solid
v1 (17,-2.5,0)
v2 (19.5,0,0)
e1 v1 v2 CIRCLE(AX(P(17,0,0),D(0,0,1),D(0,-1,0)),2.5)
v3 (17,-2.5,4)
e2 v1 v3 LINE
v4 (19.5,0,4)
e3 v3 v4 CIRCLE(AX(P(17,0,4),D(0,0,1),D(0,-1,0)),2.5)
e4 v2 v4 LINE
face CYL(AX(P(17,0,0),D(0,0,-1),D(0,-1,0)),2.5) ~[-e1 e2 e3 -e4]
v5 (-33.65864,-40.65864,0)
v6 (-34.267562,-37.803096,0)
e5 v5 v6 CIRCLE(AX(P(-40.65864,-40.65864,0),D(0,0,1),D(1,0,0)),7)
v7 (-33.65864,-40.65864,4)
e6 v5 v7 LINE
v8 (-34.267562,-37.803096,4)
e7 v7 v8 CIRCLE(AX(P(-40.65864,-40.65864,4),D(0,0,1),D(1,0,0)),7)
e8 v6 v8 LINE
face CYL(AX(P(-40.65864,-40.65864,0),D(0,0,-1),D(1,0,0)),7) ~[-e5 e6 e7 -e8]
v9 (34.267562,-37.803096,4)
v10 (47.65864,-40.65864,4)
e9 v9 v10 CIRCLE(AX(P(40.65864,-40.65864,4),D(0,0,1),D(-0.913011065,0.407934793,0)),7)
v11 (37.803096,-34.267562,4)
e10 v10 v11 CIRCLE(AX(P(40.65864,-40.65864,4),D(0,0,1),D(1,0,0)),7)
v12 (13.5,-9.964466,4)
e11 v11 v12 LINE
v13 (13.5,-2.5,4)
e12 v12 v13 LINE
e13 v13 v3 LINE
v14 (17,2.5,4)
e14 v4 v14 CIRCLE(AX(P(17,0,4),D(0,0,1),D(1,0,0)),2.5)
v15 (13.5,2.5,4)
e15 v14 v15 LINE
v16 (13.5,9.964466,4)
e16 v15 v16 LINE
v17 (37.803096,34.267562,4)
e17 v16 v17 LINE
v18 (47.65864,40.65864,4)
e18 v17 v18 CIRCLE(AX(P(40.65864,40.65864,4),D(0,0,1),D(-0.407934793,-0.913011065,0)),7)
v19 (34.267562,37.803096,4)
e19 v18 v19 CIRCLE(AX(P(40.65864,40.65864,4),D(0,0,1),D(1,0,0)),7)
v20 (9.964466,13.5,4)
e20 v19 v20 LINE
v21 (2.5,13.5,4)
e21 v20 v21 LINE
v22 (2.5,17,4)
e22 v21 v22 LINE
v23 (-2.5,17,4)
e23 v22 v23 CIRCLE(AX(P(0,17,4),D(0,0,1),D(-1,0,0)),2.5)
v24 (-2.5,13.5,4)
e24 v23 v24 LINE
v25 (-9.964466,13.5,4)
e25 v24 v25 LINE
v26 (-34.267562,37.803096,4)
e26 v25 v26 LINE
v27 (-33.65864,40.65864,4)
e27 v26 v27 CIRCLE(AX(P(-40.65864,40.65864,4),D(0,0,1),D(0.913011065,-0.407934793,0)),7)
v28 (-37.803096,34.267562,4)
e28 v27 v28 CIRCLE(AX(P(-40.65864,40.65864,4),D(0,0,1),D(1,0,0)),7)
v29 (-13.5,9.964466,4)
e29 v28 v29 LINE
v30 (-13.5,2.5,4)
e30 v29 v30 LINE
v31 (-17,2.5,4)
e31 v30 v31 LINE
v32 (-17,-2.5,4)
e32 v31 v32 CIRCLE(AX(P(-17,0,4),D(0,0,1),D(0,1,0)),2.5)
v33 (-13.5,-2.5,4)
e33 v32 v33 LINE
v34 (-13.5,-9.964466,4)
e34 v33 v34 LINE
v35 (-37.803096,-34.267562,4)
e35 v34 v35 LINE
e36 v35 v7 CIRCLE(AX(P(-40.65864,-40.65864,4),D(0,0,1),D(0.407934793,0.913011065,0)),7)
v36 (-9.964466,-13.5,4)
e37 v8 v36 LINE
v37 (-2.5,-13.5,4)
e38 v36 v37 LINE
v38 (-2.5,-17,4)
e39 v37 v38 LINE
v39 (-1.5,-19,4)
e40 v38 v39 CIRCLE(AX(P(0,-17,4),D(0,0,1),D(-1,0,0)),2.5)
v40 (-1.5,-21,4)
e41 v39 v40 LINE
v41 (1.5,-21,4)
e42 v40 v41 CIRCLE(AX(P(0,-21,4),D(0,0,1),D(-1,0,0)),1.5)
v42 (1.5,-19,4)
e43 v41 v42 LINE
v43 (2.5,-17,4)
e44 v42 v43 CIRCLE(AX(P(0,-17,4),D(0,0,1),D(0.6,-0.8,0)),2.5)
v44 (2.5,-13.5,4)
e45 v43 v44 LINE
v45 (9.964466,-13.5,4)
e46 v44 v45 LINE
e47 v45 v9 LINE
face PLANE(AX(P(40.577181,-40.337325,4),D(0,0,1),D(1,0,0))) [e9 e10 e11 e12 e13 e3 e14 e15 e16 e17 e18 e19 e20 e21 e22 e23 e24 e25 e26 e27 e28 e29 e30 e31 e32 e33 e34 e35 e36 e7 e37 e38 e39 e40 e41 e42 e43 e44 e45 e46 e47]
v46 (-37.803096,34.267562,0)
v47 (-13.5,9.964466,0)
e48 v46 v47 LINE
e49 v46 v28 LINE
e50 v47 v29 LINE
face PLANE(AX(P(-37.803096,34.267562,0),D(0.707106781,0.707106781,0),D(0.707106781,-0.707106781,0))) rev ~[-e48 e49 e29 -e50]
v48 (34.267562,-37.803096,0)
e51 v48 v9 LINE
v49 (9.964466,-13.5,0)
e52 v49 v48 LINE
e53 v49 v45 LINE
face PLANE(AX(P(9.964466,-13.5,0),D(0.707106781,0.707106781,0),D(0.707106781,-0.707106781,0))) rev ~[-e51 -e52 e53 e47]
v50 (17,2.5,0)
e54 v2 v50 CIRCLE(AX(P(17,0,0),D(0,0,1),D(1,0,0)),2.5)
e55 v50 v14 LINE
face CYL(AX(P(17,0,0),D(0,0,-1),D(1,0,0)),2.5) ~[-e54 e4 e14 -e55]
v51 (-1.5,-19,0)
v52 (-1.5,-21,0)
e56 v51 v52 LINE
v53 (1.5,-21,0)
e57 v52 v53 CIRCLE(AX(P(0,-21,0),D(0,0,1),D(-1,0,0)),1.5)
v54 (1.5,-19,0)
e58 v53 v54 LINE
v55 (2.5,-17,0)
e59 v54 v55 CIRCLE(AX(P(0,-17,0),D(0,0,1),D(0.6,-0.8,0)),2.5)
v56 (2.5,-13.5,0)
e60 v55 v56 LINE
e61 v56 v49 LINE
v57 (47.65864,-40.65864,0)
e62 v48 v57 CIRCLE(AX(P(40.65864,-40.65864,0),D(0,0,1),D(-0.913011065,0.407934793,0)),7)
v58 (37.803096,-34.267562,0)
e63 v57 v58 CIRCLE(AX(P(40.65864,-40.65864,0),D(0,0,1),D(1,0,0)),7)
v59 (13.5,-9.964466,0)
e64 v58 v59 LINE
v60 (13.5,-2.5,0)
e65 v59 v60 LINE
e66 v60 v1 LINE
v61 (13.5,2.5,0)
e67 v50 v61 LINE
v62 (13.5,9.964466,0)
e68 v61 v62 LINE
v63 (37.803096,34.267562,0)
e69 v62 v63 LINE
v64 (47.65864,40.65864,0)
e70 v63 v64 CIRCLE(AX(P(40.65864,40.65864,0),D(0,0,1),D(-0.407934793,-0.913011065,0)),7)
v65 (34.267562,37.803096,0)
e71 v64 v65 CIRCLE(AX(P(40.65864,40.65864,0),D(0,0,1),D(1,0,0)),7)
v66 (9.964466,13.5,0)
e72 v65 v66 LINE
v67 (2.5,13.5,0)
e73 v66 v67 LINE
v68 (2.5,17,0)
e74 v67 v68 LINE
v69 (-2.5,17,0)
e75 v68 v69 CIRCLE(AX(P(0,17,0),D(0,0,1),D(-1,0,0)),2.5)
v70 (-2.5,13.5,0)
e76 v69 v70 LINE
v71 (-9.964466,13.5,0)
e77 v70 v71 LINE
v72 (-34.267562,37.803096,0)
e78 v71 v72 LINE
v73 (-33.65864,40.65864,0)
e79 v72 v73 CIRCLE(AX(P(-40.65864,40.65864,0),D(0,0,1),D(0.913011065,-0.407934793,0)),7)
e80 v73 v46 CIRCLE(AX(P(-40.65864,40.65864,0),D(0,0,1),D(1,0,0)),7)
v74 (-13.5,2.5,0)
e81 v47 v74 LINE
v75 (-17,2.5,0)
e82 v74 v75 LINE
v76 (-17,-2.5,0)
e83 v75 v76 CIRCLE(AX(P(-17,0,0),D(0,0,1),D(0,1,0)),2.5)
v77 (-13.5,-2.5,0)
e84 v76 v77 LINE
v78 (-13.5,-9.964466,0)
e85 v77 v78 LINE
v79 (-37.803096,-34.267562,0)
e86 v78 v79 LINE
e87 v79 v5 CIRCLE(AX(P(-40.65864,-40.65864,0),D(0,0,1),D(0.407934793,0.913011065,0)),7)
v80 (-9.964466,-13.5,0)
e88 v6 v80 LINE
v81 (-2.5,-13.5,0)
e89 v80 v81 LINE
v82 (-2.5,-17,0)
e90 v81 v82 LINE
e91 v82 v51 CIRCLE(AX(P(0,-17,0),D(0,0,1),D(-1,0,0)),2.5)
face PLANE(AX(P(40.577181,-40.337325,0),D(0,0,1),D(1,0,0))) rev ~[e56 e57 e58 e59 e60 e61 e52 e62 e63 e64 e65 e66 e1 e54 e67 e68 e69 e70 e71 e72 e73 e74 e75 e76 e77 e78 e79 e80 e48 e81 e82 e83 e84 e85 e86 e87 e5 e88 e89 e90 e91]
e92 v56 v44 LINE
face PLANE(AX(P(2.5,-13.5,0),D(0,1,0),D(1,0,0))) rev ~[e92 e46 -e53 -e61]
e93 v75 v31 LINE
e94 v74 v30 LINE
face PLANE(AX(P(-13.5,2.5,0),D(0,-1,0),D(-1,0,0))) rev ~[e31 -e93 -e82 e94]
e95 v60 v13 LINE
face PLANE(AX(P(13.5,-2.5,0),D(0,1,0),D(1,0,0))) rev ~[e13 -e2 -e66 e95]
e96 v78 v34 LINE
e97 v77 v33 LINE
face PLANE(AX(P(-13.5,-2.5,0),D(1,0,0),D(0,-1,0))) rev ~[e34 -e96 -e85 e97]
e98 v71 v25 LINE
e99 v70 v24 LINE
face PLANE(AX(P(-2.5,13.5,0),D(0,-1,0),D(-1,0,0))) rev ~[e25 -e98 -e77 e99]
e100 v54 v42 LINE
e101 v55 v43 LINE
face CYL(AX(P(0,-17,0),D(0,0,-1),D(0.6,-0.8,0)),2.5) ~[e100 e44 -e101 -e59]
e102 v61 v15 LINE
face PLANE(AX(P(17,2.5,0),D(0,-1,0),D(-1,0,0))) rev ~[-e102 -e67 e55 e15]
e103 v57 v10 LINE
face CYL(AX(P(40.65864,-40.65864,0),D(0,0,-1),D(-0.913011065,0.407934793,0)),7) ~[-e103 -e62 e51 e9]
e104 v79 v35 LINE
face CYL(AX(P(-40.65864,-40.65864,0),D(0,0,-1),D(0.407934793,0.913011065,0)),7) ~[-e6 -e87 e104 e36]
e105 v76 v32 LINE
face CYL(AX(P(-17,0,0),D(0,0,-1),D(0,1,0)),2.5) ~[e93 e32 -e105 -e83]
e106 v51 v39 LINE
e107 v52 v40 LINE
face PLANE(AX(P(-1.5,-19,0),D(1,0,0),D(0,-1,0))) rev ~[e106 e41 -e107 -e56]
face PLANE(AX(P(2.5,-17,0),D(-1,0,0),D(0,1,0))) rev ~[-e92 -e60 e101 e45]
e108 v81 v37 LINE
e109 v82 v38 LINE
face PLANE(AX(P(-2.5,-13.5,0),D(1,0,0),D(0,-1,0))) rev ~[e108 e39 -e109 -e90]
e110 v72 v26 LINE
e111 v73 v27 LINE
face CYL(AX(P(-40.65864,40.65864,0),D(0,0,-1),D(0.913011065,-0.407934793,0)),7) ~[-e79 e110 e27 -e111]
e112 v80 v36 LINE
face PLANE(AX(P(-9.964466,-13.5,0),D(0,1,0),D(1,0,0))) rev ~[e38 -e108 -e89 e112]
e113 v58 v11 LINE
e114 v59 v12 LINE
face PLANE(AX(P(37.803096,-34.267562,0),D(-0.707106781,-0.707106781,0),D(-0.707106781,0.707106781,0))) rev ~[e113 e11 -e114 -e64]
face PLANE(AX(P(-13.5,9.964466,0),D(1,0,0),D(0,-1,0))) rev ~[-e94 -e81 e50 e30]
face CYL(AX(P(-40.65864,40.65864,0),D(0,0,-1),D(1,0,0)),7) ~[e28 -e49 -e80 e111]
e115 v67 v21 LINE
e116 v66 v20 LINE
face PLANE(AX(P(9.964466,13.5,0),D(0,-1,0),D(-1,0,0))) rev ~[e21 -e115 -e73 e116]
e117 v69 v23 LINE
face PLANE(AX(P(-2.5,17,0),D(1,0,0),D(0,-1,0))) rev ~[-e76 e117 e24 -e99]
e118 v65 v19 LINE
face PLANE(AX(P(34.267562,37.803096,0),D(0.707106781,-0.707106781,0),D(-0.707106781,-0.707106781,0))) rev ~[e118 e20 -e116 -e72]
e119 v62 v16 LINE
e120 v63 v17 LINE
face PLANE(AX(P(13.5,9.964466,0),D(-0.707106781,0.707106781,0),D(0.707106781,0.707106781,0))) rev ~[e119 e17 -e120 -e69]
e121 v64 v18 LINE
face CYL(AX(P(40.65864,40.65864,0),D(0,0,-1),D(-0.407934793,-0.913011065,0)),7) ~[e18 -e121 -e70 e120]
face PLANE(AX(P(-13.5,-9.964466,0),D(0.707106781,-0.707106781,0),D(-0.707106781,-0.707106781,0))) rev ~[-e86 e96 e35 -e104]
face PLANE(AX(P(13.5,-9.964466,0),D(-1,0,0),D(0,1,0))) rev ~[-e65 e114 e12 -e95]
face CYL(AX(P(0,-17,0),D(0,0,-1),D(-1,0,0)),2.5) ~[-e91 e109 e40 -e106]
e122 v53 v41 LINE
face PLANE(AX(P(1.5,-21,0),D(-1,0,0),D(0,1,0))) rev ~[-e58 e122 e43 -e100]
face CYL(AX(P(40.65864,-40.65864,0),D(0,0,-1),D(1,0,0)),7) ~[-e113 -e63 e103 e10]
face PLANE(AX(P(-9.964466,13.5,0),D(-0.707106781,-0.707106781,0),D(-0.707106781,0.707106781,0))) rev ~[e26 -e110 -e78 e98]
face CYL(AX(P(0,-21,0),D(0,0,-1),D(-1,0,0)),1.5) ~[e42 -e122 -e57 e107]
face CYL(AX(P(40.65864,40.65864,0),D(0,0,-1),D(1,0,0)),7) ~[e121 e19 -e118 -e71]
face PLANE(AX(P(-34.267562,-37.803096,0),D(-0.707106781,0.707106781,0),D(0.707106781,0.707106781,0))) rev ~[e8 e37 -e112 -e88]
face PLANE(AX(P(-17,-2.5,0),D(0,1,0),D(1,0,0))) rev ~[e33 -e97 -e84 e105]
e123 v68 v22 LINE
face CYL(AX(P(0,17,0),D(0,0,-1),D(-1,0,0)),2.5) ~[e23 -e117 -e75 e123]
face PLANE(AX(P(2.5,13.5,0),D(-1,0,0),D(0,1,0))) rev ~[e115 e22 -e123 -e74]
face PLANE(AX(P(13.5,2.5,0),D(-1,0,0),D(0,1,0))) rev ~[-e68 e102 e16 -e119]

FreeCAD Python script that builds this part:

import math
import FreeCAD as App
import Part
import Sketcher

doc = App.newDocument("Part")
body = doc.addObject("PartDesign::Body", "Body")

# Sketch on XY plane
sketch1 = body.newObject("Sketcher::SketchObject", "Sketch")
sketch1.AttachmentSupport = (doc.getObject("XY_Plane"), [""])
sketch1.MapMode = "FlatFace"
sketch1.addGeometry([
    Part.LineSegment(App.Vector(-13.5, 10, 0), App.Vector(-13.5, 2.5, 0)),  # 0
    Part.LineSegment(App.Vector(-13.5, 2.5, 0), App.Vector(-17, 2.5, 0)),  # 1
    Part.ArcOfCircle(Part.Circle(App.Vector(-17, 0, 0), App.Vector(0, 0, 1), 2.5), math.radians(90), math.radians(270)),  # 2
    Part.LineSegment(App.Vector(-17, -2.5, 0), App.Vector(-13.5, -2.5, 0)),  # 3
    Part.LineSegment(App.Vector(-13.5, -2.5, 0), App.Vector(-13.5, -10, 0)),  # 4
    Part.LineSegment(App.Vector(-13.5, -10, 0), App.Vector(-37.8, -34.3, 0)),  # 5
    Part.ArcOfCircle(Part.Circle(App.Vector(-40.7, -40.7, 0), App.Vector(0, 0, 1), 7), math.radians(66), math.radians(360)),  # 6
    Part.ArcOfCircle(Part.Circle(App.Vector(-40.7, -40.7, 0), App.Vector(0, 0, 1), 7), math.radians(0), math.radians(24)),  # 7
    Part.LineSegment(App.Vector(-34.3, -37.8, 0), App.Vector(-10, -13.5, 0)),  # 8
    Part.LineSegment(App.Vector(-10, -13.5, 0), App.Vector(-2.5, -13.5, 0)),  # 9
    Part.LineSegment(App.Vector(-2.5, -13.5, 0), App.Vector(-2.5, -17, 0)),  # 10
    Part.ArcOfCircle(Part.Circle(App.Vector(0, -17, 0), App.Vector(0, 0, 1), 2.5), math.radians(180), math.radians(233)),  # 11
    Part.LineSegment(App.Vector(-1.5, -19, 0), App.Vector(-1.5, -21, 0)),  # 12
    Part.ArcOfCircle(Part.Circle(App.Vector(0, -21, 0), App.Vector(0, 0, 1), 1.5), math.radians(180), math.radians(360)),  # 13
    Part.LineSegment(App.Vector(1.5, -21, 0), App.Vector(1.5, -19, 0)),  # 14
    Part.ArcOfCircle(Part.Circle(App.Vector(0, -17, 0), App.Vector(0, 0, 1), 2.5), math.radians(-53), math.radians(0)),  # 15
    Part.LineSegment(App.Vector(2.5, -17, 0), App.Vector(2.5, -13.5, 0)),  # 16
    Part.LineSegment(App.Vector(2.5, -13.5, 0), App.Vector(10, -13.5, 0)),  # 17
    Part.LineSegment(App.Vector(10, -13.5, 0), App.Vector(34.3, -37.8, 0)),  # 18
    Part.ArcOfCircle(Part.Circle(App.Vector(40.7, -40.7, 0), App.Vector(0, 0, 1), 7), math.radians(156), math.radians(360)),  # 19
    Part.ArcOfCircle(Part.Circle(App.Vector(40.7, -40.7, 0), App.Vector(0, 0, 1), 7), math.radians(0), math.radians(114)),  # 20
    Part.LineSegment(App.Vector(37.8, -34.3, 0), App.Vector(13.5, -10, 0)),  # 21
    Part.LineSegment(App.Vector(13.5, -10, 0), App.Vector(13.5, -2.5, 0)),  # 22
    Part.LineSegment(App.Vector(13.5, -2.5, 0), App.Vector(17, -2.5, 0)),  # 23
    Part.ArcOfCircle(Part.Circle(App.Vector(17, 0, 0), App.Vector(0, 0, 1), 2.5), math.radians(-90), math.radians(0)),  # 24
    Part.ArcOfCircle(Part.Circle(App.Vector(17, 0, 0), App.Vector(0, 0, 1), 2.5), math.radians(0), math.radians(90)),  # 25
    Part.LineSegment(App.Vector(17, 2.5, 0), App.Vector(13.5, 2.5, 0)),  # 26
    Part.LineSegment(App.Vector(13.5, 2.5, 0), App.Vector(13.5, 10, 0)),  # 27
    Part.LineSegment(App.Vector(13.5, 10, 0), App.Vector(37.8, 34.3, 0)),  # 28
    Part.ArcOfCircle(Part.Circle(App.Vector(40.7, 40.7, 0), App.Vector(0, 0, 1), 7), math.radians(-114), math.radians(0)),  # 29
    Part.ArcOfCircle(Part.Circle(App.Vector(40.7, 40.7, 0), App.Vector(0, 0, 1), 7), math.radians(0), math.radians(204)),  # 30
    Part.LineSegment(App.Vector(34.3, 37.8, 0), App.Vector(10, 13.5, 0)),  # 31
    Part.LineSegment(App.Vector(10, 13.5, 0), App.Vector(2.5, 13.5, 0)),  # 32
    Part.LineSegment(App.Vector(2.5, 13.5, 0), App.Vector(2.5, 17, 0)),  # 33
    Part.ArcOfCircle(Part.Circle(App.Vector(0, 17, 0), App.Vector(0, 0, 1), 2.5), math.radians(0), math.radians(180)),  # 34
    Part.LineSegment(App.Vector(-2.5, 17, 0), App.Vector(-2.5, 13.5, 0)),  # 35
    Part.LineSegment(App.Vector(-2.5, 13.5, 0), App.Vector(-10, 13.5, 0)),  # 36
    Part.LineSegment(App.Vector(-10, 13.5, 0), App.Vector(-34.3, 37.8, 0)),  # 37
    Part.ArcOfCircle(Part.Circle(App.Vector(-40.7, 40.7, 0), App.Vector(0, 0, 1), 7), math.radians(-24), math.radians(0)),  # 38
    Part.ArcOfCircle(Part.Circle(App.Vector(-40.7, 40.7, 0), App.Vector(0, 0, 1), 7), math.radians(0), math.radians(294)),  # 39
    Part.LineSegment(App.Vector(-37.8, 34.3, 0), App.Vector(-13.5, 10, 0)),  # 40
], False)
sketch1.addConstraint([
    Sketcher.Constraint("Coincident", 0, 2, 1, 1),
    Sketcher.Constraint("Tangent", 1, 2, 2, 1),
    Sketcher.Constraint("Tangent", 2, 2, 3, 1),
    Sketcher.Constraint("Coincident", 3, 2, 4, 1),
    Sketcher.Constraint("Coincident", 4, 2, 5, 1),
    Sketcher.Constraint("Coincident", 5, 2, 6, 1),
    Sketcher.Constraint("Tangent", 6, 2, 7, 1),
    Sketcher.Constraint("Coincident", 7, 2, 8, 1),
    Sketcher.Constraint("Coincident", 8, 2, 9, 1),
    Sketcher.Constraint("Coincident", 9, 2, 10, 1),
    Sketcher.Constraint("Tangent", 10, 2, 11, 1),
    Sketcher.Constraint("Coincident", 11, 2, 12, 1),
    Sketcher.Constraint("Tangent", 12, 2, 13, 1),
    Sketcher.Constraint("Tangent", 13, 2, 14, 1),
    Sketcher.Constraint("Coincident", 14, 2, 15, 1),
    Sketcher.Constraint("Tangent", 15, 2, 16, 1),
    Sketcher.Constraint("Coincident", 16, 2, 17, 1),
    Sketcher.Constraint("Coincident", 17, 2, 18, 1),
    Sketcher.Constraint("Coincident", 18, 2, 19, 1),
    Sketcher.Constraint("Tangent", 19, 2, 20, 1),
    Sketcher.Constraint("Coincident", 20, 2, 21, 1),
    Sketcher.Constraint("Coincident", 21, 2, 22, 1),
    Sketcher.Constraint("Coincident", 22, 2, 23, 1),
    Sketcher.Constraint("Tangent", 23, 2, 24, 1),
    Sketcher.Constraint("Tangent", 24, 2, 25, 1),
    Sketcher.Constraint("Tangent", 25, 2, 26, 1),
    Sketcher.Constraint("Coincident", 26, 2, 27, 1),
    Sketcher.Constraint("Coincident", 27, 2, 28, 1),
    Sketcher.Constraint("Coincident", 28, 2, 29, 1),
    Sketcher.Constraint("Tangent", 29, 2, 30, 1),
    Sketcher.Constraint("Coincident", 30, 2, 31, 1),
    Sketcher.Constraint("Coincident", 31, 2, 32, 1),
    Sketcher.Constraint("Coincident", 32, 2, 33, 1),
    Sketcher.Constraint("Tangent", 33, 2, 34, 1),
    Sketcher.Constraint("Tangent", 34, 2, 35, 1),
    Sketcher.Constraint("Coincident", 35, 2, 36, 1),
    Sketcher.Constraint("Coincident", 36, 2, 37, 1),
    Sketcher.Constraint("Coincident", 37, 2, 38, 1),
    Sketcher.Constraint("Tangent", 38, 2, 39, 1),
    Sketcher.Constraint("Coincident", 39, 2, 40, 1),
    Sketcher.Constraint("Coincident", 40, 2, 0, 1),
    Sketcher.Constraint("Vertical", 0),
    Sketcher.Constraint("Horizontal", 1),
    Sketcher.Constraint("Horizontal", 3),
    Sketcher.Constraint("Vertical", 4),
    Sketcher.Constraint("Horizontal", 9),
    Sketcher.Constraint("Vertical", 10),
    Sketcher.Constraint("Vertical", 12),
    Sketcher.Constraint("Vertical", 14),
    Sketcher.Constraint("Vertical", 16),
    Sketcher.Constraint("Horizontal", 17),
    Sketcher.Constraint("Vertical", 22),
    Sketcher.Constraint("Horizontal", 23),
    Sketcher.Constraint("Horizontal", 26),
    Sketcher.Constraint("Vertical", 27),
    Sketcher.Constraint("Horizontal", 32),
    Sketcher.Constraint("Vertical", 33),
    Sketcher.Constraint("Vertical", 35),
    Sketcher.Constraint("Horizontal", 36),
    Sketcher.Constraint("Coincident", 15, 3, 11, 3),
    Sketcher.Constraint("Equal", 6, 7),
    Sketcher.Constraint("Equal", 2, 11),
    Sketcher.Constraint("Equal", 11, 15),
    Sketcher.Constraint("Equal", 7, 19),
    Sketcher.Constraint("Equal", 19, 20),
    Sketcher.Constraint("Equal", 15, 24),
    Sketcher.Constraint("Equal", 24, 25),
    Sketcher.Constraint("Equal", 20, 29),
    Sketcher.Constraint("Equal", 29, 30),
    Sketcher.Constraint("Equal", 25, 34),
    Sketcher.Constraint("Equal", 30, 38),
    Sketcher.Constraint("Equal", 38, 39),
    Sketcher.Constraint("Symmetric", 2, 3, 24, 3, -1, 1),
    Sketcher.Constraint("Symmetric", 6, 3, 29, 3, -1, 1),
    Sketcher.Constraint("Symmetric", 11, 3, 34, 3, -1, 1),
    Sketcher.Constraint("Symmetric", 19, 3, 38, 3, -1, 1),
    Sketcher.Constraint("Symmetric", 4, 2, 27, 2, -1, 1),
    Sketcher.Constraint("Symmetric", 8, 2, 31, 2, -1, 1),
    Sketcher.Constraint("Symmetric", 17, 2, 36, 2, -1, 1),
    Sketcher.Constraint("Symmetric", 21, 2, 40, 2, -1, 1),
    Sketcher.Constraint("Symmetric", 6, 3, 19, 3, -2),
    Sketcher.Constraint("Symmetric", 11, 2, 14, 2, -2),
    Sketcher.Constraint("Symmetric", 8, 2, 17, 2, -2),
    Sketcher.Constraint("Symmetric", 4, 2, 21, 2, -2),
    Sketcher.Constraint("PointOnObject", 2, 3, -1),
    Sketcher.Constraint("PointOnObject", 24, 2, -1),
    Sketcher.Constraint("Parallel", 5, 8),
    Sketcher.Constraint("Perpendicular", 8, 18),
    Sketcher.Constraint("Parallel", 18, 21),
    Sketcher.Constraint("Perpendicular", 21, 28),
    Sketcher.Constraint("Parallel", 28, 31),
    Sketcher.Constraint("Perpendicular", 31, 37),
    Sketcher.Constraint("Parallel", 37, 40),
    Sketcher.Constraint("Horizontal", 20, 3, 6, 2),
    Sketcher.Constraint("Horizontal", 7, 2, 18, 2),
    Sketcher.Constraint("Horizontal", 6, 2, 19, 2),
    Sketcher.Constraint("Horizontal", 39, 3, 29, 2),
    Sketcher.Constraint("Horizontal", 29, 2, 38, 2),
    Sketcher.Constraint("Equal", 36, 0),
    Sketcher.Constraint("Equal", 26, 10),
    Sketcher.Constraint("Equal", 5, 8),
    Sketcher.Constraint("Radius", 6, 7.0),
    Sketcher.Constraint("Radius", 2, 2.5),
    Sketcher.Constraint("Radius", 13, 1.5),
    Sketcher.Constraint("DistanceY", 12, 2, 12, 1, 2.0),
    Sketcher.Constraint("DistanceX", 1, 2, 1, 1, 3.5),
    Sketcher.Constraint("DistanceX", 2, 3, -1, 1, 17.0),
    Sketcher.Constraint("DistanceY", 11, 3, -1, 1, 17.0),
    Sketcher.Constraint("Distance", 5, 34.369768),
    Sketcher.Constraint("DistanceX", 9, 1, 9, 2, 7.464466),
])
pad1 = body.newObject("PartDesign::Pad", "Pad")
pad1.Profile = sketch1
pad1.Length = 4

doc.recompute()
